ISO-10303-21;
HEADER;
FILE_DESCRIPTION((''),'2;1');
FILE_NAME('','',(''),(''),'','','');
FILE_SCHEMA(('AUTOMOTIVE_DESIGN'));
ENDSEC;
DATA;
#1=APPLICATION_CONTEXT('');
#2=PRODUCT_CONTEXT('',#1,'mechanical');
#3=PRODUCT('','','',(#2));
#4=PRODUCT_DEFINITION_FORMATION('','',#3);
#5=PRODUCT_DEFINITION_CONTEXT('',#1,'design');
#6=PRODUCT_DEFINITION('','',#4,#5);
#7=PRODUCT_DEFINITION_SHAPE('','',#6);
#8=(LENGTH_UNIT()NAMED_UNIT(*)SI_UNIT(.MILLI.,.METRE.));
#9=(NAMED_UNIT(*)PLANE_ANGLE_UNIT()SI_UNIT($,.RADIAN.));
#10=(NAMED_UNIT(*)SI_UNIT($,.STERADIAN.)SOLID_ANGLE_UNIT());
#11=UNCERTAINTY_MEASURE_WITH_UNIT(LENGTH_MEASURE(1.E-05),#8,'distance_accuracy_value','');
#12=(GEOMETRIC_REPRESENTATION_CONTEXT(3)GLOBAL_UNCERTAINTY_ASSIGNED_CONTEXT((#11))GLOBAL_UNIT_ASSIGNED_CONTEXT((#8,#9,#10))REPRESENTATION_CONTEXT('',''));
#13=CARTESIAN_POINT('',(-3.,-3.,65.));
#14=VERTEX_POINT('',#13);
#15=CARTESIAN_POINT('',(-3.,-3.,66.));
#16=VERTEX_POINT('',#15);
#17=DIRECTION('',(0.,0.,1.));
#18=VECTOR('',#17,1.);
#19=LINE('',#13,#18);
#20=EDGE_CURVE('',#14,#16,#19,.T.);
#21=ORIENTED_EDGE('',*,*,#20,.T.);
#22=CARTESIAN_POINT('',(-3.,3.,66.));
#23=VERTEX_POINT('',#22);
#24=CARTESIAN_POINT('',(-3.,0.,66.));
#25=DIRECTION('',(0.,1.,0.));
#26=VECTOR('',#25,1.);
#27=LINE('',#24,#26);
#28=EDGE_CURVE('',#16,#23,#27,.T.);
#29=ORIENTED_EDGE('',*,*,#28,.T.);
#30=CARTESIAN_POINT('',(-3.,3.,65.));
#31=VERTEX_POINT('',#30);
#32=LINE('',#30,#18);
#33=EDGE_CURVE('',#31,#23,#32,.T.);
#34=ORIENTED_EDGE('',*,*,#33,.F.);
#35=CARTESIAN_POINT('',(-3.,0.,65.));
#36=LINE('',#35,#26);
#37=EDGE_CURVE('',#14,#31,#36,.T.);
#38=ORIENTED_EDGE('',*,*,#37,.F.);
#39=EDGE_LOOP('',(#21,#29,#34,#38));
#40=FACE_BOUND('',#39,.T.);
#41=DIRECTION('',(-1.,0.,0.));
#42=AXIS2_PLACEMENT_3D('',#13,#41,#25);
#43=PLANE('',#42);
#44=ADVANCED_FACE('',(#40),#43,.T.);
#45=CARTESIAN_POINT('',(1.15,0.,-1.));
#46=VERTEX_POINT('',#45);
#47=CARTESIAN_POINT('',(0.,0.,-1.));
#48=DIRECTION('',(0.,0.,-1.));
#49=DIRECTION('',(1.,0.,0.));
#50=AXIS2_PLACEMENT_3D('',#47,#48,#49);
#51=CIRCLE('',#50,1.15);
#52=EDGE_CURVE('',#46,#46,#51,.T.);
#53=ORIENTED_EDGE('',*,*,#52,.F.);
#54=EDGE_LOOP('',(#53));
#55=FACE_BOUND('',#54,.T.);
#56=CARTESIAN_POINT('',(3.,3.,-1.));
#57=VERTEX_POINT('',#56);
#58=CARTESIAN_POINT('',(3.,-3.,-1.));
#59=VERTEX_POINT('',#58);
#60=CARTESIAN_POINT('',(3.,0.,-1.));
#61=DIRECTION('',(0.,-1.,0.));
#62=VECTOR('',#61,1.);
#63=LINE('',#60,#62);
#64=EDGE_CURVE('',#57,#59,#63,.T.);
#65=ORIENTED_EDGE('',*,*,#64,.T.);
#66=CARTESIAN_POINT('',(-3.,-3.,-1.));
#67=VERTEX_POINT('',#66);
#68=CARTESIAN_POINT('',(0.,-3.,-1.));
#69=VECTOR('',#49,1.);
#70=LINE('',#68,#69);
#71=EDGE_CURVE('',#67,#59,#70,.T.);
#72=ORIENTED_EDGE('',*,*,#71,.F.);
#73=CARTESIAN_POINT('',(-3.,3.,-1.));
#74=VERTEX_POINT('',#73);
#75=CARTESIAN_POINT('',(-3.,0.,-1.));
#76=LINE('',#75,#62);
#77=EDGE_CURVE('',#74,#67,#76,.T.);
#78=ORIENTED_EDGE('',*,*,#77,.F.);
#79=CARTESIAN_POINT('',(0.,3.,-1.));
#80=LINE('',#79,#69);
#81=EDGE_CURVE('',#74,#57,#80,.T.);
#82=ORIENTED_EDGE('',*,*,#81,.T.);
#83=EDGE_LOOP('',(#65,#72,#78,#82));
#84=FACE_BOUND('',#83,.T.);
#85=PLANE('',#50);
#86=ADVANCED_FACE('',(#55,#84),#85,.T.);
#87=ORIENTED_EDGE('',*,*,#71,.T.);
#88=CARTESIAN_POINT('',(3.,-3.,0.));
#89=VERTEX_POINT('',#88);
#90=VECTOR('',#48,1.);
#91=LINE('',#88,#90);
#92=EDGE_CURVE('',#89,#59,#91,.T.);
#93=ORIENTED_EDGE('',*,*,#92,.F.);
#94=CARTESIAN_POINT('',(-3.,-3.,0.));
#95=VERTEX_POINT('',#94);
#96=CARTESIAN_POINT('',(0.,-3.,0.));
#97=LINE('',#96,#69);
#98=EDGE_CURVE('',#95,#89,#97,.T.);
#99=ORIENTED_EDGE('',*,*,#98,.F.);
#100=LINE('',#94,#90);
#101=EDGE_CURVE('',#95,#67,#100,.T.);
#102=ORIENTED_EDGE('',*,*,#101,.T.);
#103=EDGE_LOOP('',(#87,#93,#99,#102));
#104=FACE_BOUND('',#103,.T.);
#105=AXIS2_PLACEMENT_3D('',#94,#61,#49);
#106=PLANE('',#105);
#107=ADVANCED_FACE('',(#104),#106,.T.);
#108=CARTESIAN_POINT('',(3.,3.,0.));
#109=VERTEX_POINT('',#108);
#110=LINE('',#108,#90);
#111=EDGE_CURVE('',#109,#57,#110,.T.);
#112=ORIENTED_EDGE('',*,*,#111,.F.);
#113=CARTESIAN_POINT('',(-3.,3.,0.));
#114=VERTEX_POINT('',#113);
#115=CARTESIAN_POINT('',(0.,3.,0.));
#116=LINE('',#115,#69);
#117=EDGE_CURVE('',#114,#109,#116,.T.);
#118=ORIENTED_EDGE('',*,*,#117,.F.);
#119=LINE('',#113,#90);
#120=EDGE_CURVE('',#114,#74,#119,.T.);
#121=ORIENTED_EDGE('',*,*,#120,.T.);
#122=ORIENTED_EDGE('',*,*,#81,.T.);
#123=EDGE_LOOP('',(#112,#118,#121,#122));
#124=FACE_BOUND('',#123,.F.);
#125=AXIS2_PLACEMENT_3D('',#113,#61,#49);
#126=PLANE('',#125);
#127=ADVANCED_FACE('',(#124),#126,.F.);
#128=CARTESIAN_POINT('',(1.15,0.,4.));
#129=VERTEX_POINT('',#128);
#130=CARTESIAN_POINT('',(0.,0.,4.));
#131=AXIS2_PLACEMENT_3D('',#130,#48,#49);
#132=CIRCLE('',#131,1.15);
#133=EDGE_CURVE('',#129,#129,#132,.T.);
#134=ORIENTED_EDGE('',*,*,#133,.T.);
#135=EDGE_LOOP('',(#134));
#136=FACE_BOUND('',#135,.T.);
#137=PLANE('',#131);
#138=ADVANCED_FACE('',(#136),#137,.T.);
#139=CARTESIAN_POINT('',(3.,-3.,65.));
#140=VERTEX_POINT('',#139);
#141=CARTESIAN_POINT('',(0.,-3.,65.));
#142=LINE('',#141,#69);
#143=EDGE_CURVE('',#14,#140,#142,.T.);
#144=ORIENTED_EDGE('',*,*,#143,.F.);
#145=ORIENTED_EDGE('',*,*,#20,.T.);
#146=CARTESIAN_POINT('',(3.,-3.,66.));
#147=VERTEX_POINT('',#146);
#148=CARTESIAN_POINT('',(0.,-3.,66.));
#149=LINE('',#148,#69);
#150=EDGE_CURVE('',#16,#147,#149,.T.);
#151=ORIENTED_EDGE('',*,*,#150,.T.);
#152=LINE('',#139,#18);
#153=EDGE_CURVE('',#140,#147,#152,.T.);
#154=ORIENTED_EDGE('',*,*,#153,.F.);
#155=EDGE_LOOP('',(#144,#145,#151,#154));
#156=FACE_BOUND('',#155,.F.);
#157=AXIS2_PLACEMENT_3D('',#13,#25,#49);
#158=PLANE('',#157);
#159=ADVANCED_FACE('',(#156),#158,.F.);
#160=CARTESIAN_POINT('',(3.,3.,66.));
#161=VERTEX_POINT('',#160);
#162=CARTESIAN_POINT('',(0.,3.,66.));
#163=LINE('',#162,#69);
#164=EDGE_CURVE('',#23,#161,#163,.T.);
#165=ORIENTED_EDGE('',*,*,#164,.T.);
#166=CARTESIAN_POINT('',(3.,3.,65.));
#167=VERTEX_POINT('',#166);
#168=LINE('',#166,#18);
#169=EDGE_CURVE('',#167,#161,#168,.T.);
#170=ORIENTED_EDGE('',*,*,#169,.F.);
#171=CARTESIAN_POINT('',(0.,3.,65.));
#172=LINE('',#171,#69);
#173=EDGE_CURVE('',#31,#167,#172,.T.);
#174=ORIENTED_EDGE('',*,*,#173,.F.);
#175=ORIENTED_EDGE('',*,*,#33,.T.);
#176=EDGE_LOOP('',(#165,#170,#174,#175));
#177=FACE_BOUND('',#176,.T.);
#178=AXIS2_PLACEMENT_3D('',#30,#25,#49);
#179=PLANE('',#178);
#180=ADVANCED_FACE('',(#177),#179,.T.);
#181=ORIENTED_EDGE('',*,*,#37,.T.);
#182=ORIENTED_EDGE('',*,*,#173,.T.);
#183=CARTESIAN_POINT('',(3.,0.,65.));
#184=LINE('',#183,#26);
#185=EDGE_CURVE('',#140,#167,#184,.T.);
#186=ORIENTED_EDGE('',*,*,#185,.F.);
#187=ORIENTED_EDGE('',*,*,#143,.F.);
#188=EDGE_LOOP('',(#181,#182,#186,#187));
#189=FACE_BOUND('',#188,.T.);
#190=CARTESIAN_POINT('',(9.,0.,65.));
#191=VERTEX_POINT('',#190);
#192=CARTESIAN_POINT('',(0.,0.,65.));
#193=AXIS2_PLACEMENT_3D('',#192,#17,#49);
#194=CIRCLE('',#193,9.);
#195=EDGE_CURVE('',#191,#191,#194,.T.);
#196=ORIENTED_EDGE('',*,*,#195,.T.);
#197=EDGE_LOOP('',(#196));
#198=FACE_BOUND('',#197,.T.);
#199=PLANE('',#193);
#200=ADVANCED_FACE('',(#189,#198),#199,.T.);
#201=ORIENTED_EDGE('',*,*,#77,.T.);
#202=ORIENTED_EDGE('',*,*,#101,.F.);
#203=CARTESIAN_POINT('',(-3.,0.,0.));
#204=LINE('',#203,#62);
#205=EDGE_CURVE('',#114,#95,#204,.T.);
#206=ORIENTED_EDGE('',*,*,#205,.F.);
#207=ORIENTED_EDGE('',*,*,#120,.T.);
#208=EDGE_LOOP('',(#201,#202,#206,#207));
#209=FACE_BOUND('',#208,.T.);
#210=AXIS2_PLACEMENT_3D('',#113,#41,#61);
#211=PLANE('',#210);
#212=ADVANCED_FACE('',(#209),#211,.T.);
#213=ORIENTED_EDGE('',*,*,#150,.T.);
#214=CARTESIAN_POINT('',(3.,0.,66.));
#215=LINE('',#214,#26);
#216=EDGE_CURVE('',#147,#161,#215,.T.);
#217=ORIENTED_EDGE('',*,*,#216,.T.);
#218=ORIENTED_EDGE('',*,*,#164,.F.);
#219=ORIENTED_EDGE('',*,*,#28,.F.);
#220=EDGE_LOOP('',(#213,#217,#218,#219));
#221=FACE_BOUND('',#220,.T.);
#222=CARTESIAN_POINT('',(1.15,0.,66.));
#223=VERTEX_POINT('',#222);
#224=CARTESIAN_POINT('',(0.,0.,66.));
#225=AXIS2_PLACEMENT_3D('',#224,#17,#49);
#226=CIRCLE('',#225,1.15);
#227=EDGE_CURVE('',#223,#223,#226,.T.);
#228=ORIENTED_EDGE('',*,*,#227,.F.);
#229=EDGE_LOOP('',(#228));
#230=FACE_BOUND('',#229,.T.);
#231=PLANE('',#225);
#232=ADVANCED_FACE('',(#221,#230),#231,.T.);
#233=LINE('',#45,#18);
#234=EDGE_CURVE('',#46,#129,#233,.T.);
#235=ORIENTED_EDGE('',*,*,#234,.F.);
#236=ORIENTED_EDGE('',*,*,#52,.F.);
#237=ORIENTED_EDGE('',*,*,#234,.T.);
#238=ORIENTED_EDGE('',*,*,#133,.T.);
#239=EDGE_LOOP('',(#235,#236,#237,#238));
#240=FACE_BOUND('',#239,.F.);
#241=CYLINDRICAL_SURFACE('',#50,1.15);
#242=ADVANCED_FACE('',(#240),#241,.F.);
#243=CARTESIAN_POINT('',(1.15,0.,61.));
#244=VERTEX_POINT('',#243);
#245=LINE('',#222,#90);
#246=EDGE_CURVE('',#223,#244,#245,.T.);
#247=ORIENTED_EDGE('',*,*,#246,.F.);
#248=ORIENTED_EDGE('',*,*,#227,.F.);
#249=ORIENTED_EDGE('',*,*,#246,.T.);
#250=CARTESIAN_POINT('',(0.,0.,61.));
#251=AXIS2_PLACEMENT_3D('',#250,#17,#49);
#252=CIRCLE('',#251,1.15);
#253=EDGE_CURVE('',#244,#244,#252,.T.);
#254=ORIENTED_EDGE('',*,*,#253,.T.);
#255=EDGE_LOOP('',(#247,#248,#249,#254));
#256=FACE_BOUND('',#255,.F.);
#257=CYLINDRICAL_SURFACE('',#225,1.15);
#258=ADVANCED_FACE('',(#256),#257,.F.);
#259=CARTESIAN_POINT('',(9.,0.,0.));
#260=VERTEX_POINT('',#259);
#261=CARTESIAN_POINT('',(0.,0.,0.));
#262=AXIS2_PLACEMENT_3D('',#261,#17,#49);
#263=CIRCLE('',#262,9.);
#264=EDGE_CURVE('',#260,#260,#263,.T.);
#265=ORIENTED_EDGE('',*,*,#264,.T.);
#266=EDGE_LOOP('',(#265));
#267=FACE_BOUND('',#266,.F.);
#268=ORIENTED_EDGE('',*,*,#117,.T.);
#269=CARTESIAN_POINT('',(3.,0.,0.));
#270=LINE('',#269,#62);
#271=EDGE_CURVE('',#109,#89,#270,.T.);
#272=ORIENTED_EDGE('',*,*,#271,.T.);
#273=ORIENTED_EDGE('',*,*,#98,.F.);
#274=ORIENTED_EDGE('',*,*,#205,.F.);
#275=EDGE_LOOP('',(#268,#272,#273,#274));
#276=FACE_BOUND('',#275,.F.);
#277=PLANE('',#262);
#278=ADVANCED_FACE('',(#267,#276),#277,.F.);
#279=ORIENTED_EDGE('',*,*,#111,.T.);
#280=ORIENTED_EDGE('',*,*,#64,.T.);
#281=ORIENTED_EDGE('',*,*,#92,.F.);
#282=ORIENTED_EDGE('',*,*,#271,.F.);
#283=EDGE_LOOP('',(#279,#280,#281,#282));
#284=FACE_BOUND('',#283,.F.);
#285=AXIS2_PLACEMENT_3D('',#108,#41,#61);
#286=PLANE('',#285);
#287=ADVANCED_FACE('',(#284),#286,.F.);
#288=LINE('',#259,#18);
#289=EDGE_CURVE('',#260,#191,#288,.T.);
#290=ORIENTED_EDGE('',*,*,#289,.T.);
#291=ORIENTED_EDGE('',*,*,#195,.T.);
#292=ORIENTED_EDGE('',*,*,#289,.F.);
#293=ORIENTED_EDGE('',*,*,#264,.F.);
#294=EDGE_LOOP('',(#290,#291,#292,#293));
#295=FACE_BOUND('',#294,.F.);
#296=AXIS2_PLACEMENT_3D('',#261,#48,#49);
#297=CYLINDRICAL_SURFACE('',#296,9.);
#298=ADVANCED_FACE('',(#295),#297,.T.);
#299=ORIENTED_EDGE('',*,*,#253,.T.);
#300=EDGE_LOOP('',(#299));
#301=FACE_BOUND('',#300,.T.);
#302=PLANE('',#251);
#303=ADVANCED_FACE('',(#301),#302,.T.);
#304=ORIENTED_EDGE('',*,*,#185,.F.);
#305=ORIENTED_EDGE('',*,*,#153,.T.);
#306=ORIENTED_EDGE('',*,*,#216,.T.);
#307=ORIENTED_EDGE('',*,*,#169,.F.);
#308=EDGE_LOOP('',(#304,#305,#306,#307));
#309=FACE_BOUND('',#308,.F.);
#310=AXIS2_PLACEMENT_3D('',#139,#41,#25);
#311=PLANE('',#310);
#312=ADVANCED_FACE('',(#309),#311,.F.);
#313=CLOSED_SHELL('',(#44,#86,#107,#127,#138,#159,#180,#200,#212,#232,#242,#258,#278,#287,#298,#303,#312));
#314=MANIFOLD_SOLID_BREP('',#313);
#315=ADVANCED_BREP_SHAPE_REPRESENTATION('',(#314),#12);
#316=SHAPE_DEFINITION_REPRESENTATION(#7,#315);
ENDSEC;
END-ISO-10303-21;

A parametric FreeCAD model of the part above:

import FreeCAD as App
import Part
import Sketcher

V = App.Vector

doc = App.newDocument("Part")
body = doc.addObject("PartDesign::Body", "Body")

sketch1 = doc.addObject("Sketcher::SketchObject", "Sketch")
body.addObject(sketch1)
sketch1.AttachmentSupport = (doc.XY_Plane, [""])
sketch1.MapMode = "FlatFace"
sketch1.addGeometry(Part.Circle(V(0, 0, 0), V(0, 0, 1), 9), False)
sketch1.addConstraint(Sketcher.Constraint("Coincident", 0, 3, -1, 1))
sketch1.addConstraint(Sketcher.Constraint("Diameter", 0, 18.0))
pad1 = doc.addObject("PartDesign::Pad", "Pad")
body.addObject(pad1)
pad1.Profile = sketch1
pad1.Length = 65

sketch2 = doc.addObject("Sketcher::SketchObject", "Sketch001")
body.addObject(sketch2)
sketch2.AttachmentSupport = (doc.XY_Plane, [""])
sketch2.MapMode = "FlatFace"
sketch2.AttachmentOffset = App.Placement(V(0, 0, 65), App.Rotation())
sketch2.addGeometry(Part.LineSegment(V(-3, 3, 0), V(-3, -3, 0)), False)
sketch2.addGeometry(Part.LineSegment(V(-3, -3, 0), V(3, -3, 0)), False)
sketch2.addGeometry(Part.LineSegment(V(3, -3, 0), V(3, 3, 0)), False)
sketch2.addGeometry(Part.LineSegment(V(3, 3, 0), V(-3, 3, 0)), False)
sketch2.addConstraint(Sketcher.Constraint("Coincident", 0, 2, 1, 1))
sketch2.addConstraint(Sketcher.Constraint("Coincident", 1, 2, 2, 1))
sketch2.addConstraint(Sketcher.Constraint("Coincident", 2, 2, 3, 1))
sketch2.addConstraint(Sketcher.Constraint("Coincident", 3, 2, 0, 1))
sketch2.addConstraint(Sketcher.Constraint("Vertical", 0))
sketch2.addConstraint(Sketcher.Constraint("Horizontal", 1))
sketch2.addConstraint(Sketcher.Constraint("Vertical", 2))
sketch2.addConstraint(Sketcher.Constraint("Horizontal", 3))
sketch2.addConstraint(Sketcher.Constraint("Symmetric", 0, 2, 2, 2, -1, 1))
sketch2.addConstraint(Sketcher.Constraint("Equal", 3, 0))
sketch2.addConstraint(Sketcher.Constraint("DistanceX", 1, 1, 1, 2, 6.0))
pad2 = doc.addObject("PartDesign::Pad", "Pad001")
body.addObject(pad2)
pad2.Profile = sketch2
pad2.Length = 1

sketch3 = doc.addObject("Sketcher::SketchObject", "Sketch002")
body.addObject(sketch3)
sketch3.AttachmentSupport = (doc.XY_Plane, [""])
sketch3.MapMode = "FlatFace"
sketch3.AttachmentOffset = App.Placement(V(0, 0, 66), App.Rotation())
sketch3.addGeometry(Part.Circle(V(0, 0, 0), V(0, 0, 1), 1.15), False)
sketch3.addConstraint(Sketcher.Constraint("Coincident", 0, 3, -1, 1))
sketch3.addConstraint(Sketcher.Constraint("Diameter", 0, 2.3))
pocket1 = doc.addObject("PartDesign::Pocket", "Pocket")
body.addObject(pocket1)
pocket1.Profile = sketch3
pocket1.Length = 5

sketch4 = doc.addObject("Sketcher::SketchObject", "Sketch003")
body.addObject(sketch4)
sketch4.AttachmentSupport = (doc.XY_Plane, [""])
sketch4.MapMode = "FlatFace"
sketch4.addGeometry(Part.LineSegment(V(-3, -3, 0), V(-3, 3, 0)), False)
sketch4.addGeometry(Part.LineSegment(V(-3, 3, 0), V(3, 3, 0)), False)
sketch4.addGeometry(Part.LineSegment(V(3, 3, 0), V(3, -3, 0)), False)
sketch4.addGeometry(Part.LineSegment(V(3, -3, 0), V(-3, -3, 0)), False)
sketch4.addConstraint(Sketcher.Constraint("Coincident", 0, 2, 1, 1))
sketch4.addConstraint(Sketcher.Constraint("Coincident", 1, 2, 2, 1))
sketch4.addConstraint(Sketcher.Constraint("Coincident", 2, 2, 3, 1))
sketch4.addConstraint(Sketcher.Constraint("Coincident", 3, 2, 0, 1))
sketch4.addConstraint(Sketcher.Constraint("Vertical", 0))
sketch4.addConstraint(Sketcher.Constraint("Horizontal", 1))
sketch4.addConstraint(Sketcher.Constraint("Vertical", 2))
sketch4.addConstraint(Sketcher.Constraint("Horizontal", 3))
sketch4.addConstraint(Sketcher.Constraint("Symmetric", 0, 2, 2, 2, -1, 1))
sketch4.addConstraint(Sketcher.Constraint("Equal", 3, 0))
sketch4.addConstraint(Sketcher.Constraint("DistanceX", 1, 1, 1, 2, 6.0))
pad3 = doc.addObject("PartDesign::Pad", "Pad002")
body.addObject(pad3)
pad3.Profile = sketch4
pad3.Length = 1
pad3.Reversed = True

sketch5 = doc.addObject("Sketcher::SketchObject", "Sketch004")
body.addObject(sketch5)
sketch5.AttachmentSupport = (doc.XY_Plane, [""])
sketch5.MapMode = "FlatFace"
sketch5.AttachmentOffset = App.Placement(V(0, 0, -1), App.Rotation())
sketch5.addGeometry(Part.Circle(V(0, 0, 0), V(0, 0, 1), 1.15), False)
sketch5.addConstraint(Sketcher.Constraint("Coincident", 0, 3, -1, 1))
sketch5.addConstraint(Sketcher.Constraint("Diameter", 0, 2.3))
pocket2 = doc.addObject("PartDesign::Pocket", "Pocket001")
body.addObject(pocket2)
pocket2.Profile = sketch5
pocket2.Length = 5
pocket2.Reversed = True

doc.recompute()
